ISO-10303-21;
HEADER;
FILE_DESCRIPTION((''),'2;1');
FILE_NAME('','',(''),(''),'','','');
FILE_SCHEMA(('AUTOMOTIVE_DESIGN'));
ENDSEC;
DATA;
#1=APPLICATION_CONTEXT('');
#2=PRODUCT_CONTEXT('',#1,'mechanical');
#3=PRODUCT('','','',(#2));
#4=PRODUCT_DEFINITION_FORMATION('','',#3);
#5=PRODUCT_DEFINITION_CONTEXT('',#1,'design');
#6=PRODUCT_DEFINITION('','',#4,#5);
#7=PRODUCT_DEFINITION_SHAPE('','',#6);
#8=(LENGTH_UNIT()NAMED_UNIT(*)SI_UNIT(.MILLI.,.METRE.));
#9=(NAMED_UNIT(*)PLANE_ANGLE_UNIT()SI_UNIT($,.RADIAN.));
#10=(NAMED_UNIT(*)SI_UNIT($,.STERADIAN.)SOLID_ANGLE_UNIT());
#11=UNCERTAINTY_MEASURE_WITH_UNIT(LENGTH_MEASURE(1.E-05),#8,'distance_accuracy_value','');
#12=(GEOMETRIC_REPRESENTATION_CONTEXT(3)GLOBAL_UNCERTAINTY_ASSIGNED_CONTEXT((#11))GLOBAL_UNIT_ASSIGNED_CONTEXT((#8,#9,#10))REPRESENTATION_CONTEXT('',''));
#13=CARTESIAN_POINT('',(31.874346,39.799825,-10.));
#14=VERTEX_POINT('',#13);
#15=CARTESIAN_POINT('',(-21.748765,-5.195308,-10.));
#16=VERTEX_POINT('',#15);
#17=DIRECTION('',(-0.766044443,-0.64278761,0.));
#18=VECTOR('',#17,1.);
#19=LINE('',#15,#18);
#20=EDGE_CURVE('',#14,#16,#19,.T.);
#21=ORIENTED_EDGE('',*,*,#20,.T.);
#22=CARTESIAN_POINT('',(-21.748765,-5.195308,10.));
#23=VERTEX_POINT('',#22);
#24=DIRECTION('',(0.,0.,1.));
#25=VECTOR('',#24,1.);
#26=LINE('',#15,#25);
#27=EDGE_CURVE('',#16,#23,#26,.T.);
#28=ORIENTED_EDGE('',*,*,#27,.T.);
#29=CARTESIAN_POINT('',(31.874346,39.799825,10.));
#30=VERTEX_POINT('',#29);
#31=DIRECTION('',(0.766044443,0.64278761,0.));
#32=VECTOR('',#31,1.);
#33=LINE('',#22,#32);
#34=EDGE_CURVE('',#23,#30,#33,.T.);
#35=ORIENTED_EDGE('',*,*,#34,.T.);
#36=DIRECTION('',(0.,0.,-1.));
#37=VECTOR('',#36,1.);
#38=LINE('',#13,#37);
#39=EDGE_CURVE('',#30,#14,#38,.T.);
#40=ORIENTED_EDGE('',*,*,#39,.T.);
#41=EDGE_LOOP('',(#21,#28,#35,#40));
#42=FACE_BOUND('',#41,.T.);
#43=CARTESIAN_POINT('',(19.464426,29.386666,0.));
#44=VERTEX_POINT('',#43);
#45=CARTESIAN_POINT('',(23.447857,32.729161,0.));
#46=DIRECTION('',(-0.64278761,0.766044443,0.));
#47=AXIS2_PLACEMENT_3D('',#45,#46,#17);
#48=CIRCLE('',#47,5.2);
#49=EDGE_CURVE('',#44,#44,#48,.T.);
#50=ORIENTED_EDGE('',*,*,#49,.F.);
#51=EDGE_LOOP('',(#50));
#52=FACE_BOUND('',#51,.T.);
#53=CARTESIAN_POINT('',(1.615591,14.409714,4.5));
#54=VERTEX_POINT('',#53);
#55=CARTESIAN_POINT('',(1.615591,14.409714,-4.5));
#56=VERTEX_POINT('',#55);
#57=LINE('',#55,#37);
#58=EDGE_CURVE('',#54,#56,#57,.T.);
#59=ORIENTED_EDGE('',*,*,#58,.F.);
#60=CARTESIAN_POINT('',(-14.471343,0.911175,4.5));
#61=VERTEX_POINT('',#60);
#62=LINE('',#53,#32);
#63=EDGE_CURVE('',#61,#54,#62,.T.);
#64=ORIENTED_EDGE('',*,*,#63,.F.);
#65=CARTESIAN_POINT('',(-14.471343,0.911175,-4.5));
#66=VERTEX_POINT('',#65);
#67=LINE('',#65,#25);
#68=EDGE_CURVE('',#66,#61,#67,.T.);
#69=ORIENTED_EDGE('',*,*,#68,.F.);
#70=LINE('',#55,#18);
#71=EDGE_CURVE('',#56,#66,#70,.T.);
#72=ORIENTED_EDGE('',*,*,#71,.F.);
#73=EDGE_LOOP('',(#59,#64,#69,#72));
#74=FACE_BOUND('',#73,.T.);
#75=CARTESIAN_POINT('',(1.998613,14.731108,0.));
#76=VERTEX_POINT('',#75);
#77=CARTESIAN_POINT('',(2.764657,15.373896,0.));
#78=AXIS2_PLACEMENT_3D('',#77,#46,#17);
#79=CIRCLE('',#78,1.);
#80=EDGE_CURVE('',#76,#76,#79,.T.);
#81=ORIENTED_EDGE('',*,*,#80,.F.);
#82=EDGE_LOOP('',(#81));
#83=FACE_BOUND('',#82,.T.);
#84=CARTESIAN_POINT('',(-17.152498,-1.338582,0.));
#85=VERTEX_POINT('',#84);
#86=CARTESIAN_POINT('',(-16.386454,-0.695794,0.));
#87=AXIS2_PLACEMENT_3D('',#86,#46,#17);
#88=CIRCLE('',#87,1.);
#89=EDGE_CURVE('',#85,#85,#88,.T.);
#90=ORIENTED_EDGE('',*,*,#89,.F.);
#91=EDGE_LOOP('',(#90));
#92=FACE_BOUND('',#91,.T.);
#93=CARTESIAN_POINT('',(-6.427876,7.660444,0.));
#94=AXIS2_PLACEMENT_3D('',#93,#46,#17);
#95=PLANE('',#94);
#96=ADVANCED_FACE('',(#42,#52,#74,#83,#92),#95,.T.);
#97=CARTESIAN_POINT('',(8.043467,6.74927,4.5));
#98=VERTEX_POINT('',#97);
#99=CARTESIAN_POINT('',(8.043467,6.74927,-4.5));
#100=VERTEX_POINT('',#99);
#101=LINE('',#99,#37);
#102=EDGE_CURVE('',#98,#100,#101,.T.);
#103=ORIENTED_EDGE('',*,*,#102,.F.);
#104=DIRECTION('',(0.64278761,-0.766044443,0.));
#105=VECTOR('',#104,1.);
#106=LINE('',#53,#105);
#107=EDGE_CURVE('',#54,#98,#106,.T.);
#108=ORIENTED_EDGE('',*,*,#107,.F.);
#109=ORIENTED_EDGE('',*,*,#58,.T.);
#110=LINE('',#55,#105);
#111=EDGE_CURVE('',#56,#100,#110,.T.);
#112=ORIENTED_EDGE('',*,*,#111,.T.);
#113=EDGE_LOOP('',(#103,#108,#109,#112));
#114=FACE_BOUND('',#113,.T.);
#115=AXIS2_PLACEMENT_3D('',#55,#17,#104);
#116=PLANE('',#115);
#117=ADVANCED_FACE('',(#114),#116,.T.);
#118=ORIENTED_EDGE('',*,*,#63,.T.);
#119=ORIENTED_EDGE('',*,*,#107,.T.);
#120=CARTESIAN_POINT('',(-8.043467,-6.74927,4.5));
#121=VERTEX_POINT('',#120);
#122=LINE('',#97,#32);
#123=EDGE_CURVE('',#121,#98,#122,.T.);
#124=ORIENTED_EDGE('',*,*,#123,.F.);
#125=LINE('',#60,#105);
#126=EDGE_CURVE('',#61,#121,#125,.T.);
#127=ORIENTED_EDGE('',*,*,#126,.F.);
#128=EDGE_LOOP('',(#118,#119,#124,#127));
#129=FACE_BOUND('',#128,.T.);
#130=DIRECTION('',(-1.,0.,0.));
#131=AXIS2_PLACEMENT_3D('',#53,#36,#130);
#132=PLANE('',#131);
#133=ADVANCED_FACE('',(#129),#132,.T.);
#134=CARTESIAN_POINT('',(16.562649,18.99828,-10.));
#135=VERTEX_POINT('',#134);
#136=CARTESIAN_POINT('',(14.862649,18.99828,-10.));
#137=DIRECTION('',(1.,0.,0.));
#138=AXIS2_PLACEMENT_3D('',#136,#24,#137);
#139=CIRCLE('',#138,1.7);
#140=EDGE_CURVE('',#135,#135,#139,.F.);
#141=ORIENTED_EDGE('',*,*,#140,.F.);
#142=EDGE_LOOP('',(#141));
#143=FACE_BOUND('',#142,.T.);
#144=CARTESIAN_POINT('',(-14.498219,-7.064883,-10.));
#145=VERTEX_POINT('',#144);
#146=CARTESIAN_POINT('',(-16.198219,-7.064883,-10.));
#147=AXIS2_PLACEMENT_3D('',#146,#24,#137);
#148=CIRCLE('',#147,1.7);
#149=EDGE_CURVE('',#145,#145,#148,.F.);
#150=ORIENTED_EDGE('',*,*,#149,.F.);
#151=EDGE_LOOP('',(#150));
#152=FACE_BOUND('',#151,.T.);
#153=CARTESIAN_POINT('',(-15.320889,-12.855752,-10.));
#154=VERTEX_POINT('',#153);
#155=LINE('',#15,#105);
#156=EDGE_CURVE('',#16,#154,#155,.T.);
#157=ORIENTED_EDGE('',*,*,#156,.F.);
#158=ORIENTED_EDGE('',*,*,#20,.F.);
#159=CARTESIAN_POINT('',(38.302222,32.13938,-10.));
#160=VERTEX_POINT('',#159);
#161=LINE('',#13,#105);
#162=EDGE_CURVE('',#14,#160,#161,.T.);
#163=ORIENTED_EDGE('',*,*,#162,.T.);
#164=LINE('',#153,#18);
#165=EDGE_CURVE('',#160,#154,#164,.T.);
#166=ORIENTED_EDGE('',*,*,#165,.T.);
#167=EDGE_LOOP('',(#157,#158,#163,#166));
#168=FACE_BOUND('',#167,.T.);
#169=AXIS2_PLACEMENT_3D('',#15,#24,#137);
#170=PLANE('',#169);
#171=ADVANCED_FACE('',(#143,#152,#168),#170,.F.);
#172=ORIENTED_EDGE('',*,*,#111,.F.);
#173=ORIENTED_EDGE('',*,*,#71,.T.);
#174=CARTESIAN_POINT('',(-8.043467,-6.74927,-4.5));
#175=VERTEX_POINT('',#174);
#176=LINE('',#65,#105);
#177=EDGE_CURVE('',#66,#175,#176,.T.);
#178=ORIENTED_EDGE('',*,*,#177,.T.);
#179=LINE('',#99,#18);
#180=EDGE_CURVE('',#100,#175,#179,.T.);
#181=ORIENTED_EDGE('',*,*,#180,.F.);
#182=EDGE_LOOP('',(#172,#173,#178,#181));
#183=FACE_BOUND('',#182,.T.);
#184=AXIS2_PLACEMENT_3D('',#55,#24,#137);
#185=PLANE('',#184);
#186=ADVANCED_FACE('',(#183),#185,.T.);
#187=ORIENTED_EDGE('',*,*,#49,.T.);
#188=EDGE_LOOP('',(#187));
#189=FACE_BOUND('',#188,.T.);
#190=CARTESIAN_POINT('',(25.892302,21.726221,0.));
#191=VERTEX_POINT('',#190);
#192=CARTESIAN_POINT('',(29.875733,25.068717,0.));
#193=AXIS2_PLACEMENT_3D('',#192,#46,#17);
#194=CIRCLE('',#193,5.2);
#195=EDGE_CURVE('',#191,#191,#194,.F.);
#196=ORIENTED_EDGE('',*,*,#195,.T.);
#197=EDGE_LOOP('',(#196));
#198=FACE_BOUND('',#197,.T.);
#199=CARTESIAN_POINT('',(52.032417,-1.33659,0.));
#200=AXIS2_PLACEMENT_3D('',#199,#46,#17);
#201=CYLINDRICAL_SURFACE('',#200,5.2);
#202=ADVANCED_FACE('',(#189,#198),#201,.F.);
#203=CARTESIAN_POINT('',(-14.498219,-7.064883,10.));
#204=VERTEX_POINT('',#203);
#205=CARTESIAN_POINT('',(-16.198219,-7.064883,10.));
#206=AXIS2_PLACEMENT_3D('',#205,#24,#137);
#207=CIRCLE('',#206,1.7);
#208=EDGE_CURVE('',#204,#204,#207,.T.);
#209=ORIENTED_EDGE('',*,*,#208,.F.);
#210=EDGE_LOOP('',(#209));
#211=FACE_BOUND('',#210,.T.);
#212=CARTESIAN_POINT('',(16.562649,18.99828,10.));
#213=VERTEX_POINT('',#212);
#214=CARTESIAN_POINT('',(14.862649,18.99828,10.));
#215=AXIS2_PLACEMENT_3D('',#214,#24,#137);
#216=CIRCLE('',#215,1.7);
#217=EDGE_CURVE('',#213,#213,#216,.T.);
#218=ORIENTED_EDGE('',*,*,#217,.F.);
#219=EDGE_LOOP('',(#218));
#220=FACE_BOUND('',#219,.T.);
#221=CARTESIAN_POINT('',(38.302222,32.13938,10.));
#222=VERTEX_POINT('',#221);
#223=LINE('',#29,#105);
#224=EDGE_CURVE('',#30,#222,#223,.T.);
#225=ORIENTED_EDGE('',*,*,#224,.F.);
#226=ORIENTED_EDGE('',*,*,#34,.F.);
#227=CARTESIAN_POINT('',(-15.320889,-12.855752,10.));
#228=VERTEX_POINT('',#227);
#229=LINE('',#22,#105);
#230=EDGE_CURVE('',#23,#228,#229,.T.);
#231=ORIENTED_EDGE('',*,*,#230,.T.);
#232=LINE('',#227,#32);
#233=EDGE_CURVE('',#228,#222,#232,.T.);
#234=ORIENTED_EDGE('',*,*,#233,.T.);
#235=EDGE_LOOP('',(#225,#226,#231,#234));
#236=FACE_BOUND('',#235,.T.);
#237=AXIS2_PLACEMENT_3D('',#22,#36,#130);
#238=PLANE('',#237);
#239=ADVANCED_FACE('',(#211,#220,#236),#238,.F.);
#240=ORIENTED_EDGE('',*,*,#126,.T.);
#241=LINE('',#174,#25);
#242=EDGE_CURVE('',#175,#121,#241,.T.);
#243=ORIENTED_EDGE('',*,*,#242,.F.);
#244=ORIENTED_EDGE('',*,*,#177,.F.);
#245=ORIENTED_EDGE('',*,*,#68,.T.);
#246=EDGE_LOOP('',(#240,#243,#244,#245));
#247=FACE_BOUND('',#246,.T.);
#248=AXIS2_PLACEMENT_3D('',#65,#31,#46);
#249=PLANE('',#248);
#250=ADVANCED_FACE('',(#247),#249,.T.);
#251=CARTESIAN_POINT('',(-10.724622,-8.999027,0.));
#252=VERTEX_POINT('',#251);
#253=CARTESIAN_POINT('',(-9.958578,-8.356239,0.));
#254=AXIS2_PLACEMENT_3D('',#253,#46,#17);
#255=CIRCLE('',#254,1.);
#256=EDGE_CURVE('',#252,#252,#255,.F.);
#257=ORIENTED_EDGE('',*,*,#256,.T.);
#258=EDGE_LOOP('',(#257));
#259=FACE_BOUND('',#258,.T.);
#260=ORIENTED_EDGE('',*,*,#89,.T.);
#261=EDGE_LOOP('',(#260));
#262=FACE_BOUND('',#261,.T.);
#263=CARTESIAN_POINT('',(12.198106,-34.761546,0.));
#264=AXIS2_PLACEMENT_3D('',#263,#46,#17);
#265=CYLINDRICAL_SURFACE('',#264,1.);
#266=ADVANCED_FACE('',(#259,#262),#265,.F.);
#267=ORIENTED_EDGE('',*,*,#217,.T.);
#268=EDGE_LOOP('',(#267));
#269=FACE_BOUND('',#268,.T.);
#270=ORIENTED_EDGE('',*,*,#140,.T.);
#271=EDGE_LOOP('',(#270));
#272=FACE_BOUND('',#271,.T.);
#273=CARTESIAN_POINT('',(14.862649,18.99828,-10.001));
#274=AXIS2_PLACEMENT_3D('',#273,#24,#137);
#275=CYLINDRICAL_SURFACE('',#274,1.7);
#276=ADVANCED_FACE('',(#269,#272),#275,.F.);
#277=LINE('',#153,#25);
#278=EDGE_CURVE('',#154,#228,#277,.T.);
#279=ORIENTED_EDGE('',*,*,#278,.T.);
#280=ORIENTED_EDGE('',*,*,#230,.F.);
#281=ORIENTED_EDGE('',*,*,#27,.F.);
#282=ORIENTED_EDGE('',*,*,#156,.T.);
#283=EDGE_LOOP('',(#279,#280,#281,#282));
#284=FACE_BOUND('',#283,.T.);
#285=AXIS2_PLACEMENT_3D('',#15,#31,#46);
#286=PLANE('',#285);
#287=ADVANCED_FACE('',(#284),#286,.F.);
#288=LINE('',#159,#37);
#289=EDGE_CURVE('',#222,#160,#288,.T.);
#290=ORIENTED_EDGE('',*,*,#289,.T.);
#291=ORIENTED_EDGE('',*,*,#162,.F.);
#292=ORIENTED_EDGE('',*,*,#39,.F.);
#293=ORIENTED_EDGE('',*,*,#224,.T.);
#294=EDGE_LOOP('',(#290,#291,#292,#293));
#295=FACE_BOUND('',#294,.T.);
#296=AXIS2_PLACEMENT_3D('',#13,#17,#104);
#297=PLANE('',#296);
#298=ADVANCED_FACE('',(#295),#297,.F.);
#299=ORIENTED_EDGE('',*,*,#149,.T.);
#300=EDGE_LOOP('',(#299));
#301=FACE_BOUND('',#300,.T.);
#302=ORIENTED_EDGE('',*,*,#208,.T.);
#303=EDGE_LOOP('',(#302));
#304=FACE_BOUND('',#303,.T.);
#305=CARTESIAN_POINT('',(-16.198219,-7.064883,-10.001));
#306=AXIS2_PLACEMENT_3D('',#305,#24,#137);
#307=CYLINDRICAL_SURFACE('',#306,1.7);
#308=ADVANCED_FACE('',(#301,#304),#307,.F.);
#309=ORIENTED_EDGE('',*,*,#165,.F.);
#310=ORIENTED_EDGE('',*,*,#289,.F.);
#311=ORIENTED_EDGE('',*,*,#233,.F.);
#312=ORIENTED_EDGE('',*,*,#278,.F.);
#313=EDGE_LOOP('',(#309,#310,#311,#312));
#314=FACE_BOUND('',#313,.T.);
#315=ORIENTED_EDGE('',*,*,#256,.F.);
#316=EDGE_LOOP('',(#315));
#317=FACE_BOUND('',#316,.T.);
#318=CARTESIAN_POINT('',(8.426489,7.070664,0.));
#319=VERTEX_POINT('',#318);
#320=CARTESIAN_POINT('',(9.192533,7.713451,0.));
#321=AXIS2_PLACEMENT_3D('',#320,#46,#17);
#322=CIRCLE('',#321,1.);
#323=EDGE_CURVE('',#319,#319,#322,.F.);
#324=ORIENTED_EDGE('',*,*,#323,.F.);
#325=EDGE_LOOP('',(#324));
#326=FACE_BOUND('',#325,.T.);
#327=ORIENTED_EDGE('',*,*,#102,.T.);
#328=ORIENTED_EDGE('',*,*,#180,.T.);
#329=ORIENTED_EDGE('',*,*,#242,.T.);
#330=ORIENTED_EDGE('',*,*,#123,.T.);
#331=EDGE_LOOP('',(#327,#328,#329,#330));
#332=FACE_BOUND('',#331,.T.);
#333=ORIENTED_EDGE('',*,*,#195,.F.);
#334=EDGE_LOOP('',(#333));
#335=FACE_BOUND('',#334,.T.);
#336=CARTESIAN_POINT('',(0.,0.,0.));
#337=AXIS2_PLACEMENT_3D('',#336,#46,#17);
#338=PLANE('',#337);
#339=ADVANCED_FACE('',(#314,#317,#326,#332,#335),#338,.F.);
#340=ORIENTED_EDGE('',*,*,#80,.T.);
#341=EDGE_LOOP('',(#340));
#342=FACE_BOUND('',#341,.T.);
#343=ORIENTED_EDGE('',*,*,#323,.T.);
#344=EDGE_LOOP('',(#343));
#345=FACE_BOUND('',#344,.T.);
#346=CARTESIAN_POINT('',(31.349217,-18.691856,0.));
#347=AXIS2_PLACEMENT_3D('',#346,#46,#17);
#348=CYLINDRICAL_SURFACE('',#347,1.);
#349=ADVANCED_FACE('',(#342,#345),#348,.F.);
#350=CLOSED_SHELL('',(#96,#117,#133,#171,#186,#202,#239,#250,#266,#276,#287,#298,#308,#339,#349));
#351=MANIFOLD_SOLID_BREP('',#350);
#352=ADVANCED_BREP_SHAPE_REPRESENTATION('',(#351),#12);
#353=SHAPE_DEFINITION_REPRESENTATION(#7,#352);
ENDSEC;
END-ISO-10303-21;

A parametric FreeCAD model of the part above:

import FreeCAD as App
import Part
import Sketcher
from FreeCAD import Vector

doc = App.newDocument("Part")
body = doc.addObject("PartDesign::Body", "Body")

sketch1 = body.newObject("Sketcher::SketchObject", "Sketch")
sketch1.Placement = App.Placement(Vector(0, 0, 0), App.Rotation(Vector(0.766044443, 0.64278761, 0), Vector(0, 0, -1), Vector(-0.64278761, 0.766044443, 0), "ZXY"))
sketch1.addGeometry([
    Part.LineSegment(Vector(-20, 10, 0), Vector(-20, -10, 0)),
    Part.LineSegment(Vector(-20, -10, 0), Vector(50, -10, 0)),
    Part.LineSegment(Vector(50, -10, 0), Vector(50, 10, 0)),
    Part.LineSegment(Vector(50, 10, 0), Vector(-20, 10, 0)),
    Part.LineSegment(Vector(11, -5, 0), Vector(-11, -5, 0)),
    Part.LineSegment(Vector(-11, -5, 0), Vector(-11, 5, 0)),
    Part.LineSegment(Vector(-11, 5, 0), Vector(11, 5, 0)),
    Part.LineSegment(Vector(11, 5, 0), Vector(11, -5, 0)),
], False)
sketch1.addConstraint([
    Sketcher.Constraint("Coincident", 0, 2, 1, 1),
    Sketcher.Constraint("Coincident", 1, 2, 2, 1),
    Sketcher.Constraint("Coincident", 2, 2, 3, 1),
    Sketcher.Constraint("Coincident", 3, 2, 0, 1),
    Sketcher.Constraint("Coincident", 4, 2, 5, 1),
    Sketcher.Constraint("Coincident", 5, 2, 6, 1),
    Sketcher.Constraint("Coincident", 6, 2, 7, 1),
    Sketcher.Constraint("Coincident", 7, 2, 4, 1),
    Sketcher.Constraint("Vertical", 0),
    Sketcher.Constraint("Horizontal", 1),
    Sketcher.Constraint("Vertical", 2),
    Sketcher.Constraint("Horizontal", 3),
    Sketcher.Constraint("Horizontal", 4),
    Sketcher.Constraint("Vertical", 5),
    Sketcher.Constraint("Horizontal", 6),
    Sketcher.Constraint("Vertical", 7),
    Sketcher.Constraint("Symmetric", 4, 2, 6, 2, -1, 1),
    Sketcher.Constraint("DistanceX", 1, 1, 1, 2, 70.0),
    Sketcher.Constraint("DistanceX", 4, 2, 4, 1, 21.0),
    Sketcher.Constraint("DistanceY", 0, 2, 0, 1, 20.0),
    Sketcher.Constraint("DistanceY", 5, 1, 5, 2, 9.0),
    Sketcher.Constraint("DistanceX", 0, 2, -1, 1, 20.0),
    Sketcher.Constraint("DistanceY", 0, 2, -1, 1, 10.0),
])
pad1 = body.newObject("PartDesign::Pad", "Pad")
pad1.Profile = sketch1
pad1.Length = 10

sketch2 = body.newObject("Sketcher::SketchObject", "Sketch001")
sketch2.Placement = App.Placement(Vector(-6.427876, 7.660444, 0), App.Rotation(Vector(0.766044443, 0.64278761, 0), Vector(0, 0, -1), Vector(-0.64278761, 0.766044443, 0), "ZXY"))
sketch2.addGeometry(Part.Circle(Vector(39, 0, 0), Vector(0, 0, 1), 5), False)
sketch2.addConstraint([
    Sketcher.Constraint("PointOnObject", 0, 3, -1),
    Sketcher.Constraint("Diameter", 0, 10.4),
    Sketcher.Constraint("DistanceX", -1, 1, 0, 3, 39.0),
])
pocket1 = body.newObject("PartDesign::Pocket", "Pocket")
pocket1.Profile = sketch2
pocket1.Type = "UpToFirst"

sketch3 = body.newObject("Sketcher::SketchObject", "Sketch002")
sketch3.Placement = App.Placement(Vector(-6.427876, 7.660444, 0), App.Rotation(Vector(0.766044443, 0.64278761, 0), Vector(0, 0, -1), Vector(-0.64278761, 0.766044443, 0), "ZXY"))
sketch3.addGeometry(Part.Circle(Vector(-13, 0, 0), Vector(0, 0, 1), 1), False)
sketch3.addConstraint([
    Sketcher.Constraint("PointOnObject", 0, 3, -1),
    Sketcher.Constraint("Diameter", 0, 2.0),
    Sketcher.Constraint("DistanceX", 0, 3, -1, 1, 13.0),
])
pocket2 = body.newObject("PartDesign::Pocket", "Pocket001")
pocket2.Profile = sketch3
pocket2.Type = "UpToFirst"

sketch4 = body.newObject("Sketcher::SketchObject", "Sketch003")
sketch4.Placement = App.Placement(Vector(-6.427876, 7.660444, 0), App.Rotation(Vector(0.766044443, 0.64278761, 0), Vector(0, 0, -1), Vector(-0.64278761, 0.766044443, 0), "ZXY"))
sketch4.addGeometry(Part.Circle(Vector(12, 0, 0), Vector(0, 0, 1), 1), False)
sketch4.addConstraint([
    Sketcher.Constraint("PointOnObject", 0, 3, -1),
    Sketcher.Constraint("Diameter", 0, 2.0),
    Sketcher.Constraint("DistanceX", -1, 1, 0, 3, 12.0),
])
pocket3 = body.newObject("PartDesign::Pocket", "Pocket002")
pocket3.Profile = sketch4
pocket3.Type = "UpToFirst"

sketch5 = body.newObject("Sketcher::SketchObject", "Sketch004")
sketch5.AttachmentSupport = (doc.getObject("XY_Plane"), [""])
sketch5.MapMode = "FlatFace"
sketch5.AttachmentOffset = App.Placement(Vector(0, 0, 10), App.Rotation())
sketch5.addGeometry(Part.Circle(Vector(-16.2, -7.1, 0), Vector(0, 0, 1), 1.7), False)
sketch5.addConstraint([
    Sketcher.Constraint("Diameter", 0, 3.4),
    Sketcher.Constraint("DistanceX", 0, 3, -1, 1, 16.198219),
    Sketcher.Constraint("DistanceY", 0, 3, -1, 1, 7.064883),
])
pocket4 = body.newObject("PartDesign::Pocket", "Pocket003")
pocket4.Profile = sketch5
pocket4.Type = "UpToFirst"

sketch6 = body.newObject("Sketcher::SketchObject", "Sketch005")
sketch6.AttachmentSupport = (doc.getObject("XY_Plane"), [""])
sketch6.MapMode = "FlatFace"
sketch6.AttachmentOffset = App.Placement(Vector(0, 0, 10), App.Rotation())
sketch6.addGeometry(Part.Circle(Vector(14.9, 19, 0), Vector(0, 0, 1), 1.7), False)
sketch6.addConstraint([
    Sketcher.Constraint("Diameter", 0, 3.4),
    Sketcher.Constraint("DistanceX", -1, 1, 0, 3, 14.862649),
    Sketcher.Constraint("DistanceY", -1, 1, 0, 3, 18.99828),
])
pocket5 = body.newObject("PartDesign::Pocket", "Pocket004")
pocket5.Profile = sketch6
pocket5.Type = "UpToFirst"

doc.recompute()
